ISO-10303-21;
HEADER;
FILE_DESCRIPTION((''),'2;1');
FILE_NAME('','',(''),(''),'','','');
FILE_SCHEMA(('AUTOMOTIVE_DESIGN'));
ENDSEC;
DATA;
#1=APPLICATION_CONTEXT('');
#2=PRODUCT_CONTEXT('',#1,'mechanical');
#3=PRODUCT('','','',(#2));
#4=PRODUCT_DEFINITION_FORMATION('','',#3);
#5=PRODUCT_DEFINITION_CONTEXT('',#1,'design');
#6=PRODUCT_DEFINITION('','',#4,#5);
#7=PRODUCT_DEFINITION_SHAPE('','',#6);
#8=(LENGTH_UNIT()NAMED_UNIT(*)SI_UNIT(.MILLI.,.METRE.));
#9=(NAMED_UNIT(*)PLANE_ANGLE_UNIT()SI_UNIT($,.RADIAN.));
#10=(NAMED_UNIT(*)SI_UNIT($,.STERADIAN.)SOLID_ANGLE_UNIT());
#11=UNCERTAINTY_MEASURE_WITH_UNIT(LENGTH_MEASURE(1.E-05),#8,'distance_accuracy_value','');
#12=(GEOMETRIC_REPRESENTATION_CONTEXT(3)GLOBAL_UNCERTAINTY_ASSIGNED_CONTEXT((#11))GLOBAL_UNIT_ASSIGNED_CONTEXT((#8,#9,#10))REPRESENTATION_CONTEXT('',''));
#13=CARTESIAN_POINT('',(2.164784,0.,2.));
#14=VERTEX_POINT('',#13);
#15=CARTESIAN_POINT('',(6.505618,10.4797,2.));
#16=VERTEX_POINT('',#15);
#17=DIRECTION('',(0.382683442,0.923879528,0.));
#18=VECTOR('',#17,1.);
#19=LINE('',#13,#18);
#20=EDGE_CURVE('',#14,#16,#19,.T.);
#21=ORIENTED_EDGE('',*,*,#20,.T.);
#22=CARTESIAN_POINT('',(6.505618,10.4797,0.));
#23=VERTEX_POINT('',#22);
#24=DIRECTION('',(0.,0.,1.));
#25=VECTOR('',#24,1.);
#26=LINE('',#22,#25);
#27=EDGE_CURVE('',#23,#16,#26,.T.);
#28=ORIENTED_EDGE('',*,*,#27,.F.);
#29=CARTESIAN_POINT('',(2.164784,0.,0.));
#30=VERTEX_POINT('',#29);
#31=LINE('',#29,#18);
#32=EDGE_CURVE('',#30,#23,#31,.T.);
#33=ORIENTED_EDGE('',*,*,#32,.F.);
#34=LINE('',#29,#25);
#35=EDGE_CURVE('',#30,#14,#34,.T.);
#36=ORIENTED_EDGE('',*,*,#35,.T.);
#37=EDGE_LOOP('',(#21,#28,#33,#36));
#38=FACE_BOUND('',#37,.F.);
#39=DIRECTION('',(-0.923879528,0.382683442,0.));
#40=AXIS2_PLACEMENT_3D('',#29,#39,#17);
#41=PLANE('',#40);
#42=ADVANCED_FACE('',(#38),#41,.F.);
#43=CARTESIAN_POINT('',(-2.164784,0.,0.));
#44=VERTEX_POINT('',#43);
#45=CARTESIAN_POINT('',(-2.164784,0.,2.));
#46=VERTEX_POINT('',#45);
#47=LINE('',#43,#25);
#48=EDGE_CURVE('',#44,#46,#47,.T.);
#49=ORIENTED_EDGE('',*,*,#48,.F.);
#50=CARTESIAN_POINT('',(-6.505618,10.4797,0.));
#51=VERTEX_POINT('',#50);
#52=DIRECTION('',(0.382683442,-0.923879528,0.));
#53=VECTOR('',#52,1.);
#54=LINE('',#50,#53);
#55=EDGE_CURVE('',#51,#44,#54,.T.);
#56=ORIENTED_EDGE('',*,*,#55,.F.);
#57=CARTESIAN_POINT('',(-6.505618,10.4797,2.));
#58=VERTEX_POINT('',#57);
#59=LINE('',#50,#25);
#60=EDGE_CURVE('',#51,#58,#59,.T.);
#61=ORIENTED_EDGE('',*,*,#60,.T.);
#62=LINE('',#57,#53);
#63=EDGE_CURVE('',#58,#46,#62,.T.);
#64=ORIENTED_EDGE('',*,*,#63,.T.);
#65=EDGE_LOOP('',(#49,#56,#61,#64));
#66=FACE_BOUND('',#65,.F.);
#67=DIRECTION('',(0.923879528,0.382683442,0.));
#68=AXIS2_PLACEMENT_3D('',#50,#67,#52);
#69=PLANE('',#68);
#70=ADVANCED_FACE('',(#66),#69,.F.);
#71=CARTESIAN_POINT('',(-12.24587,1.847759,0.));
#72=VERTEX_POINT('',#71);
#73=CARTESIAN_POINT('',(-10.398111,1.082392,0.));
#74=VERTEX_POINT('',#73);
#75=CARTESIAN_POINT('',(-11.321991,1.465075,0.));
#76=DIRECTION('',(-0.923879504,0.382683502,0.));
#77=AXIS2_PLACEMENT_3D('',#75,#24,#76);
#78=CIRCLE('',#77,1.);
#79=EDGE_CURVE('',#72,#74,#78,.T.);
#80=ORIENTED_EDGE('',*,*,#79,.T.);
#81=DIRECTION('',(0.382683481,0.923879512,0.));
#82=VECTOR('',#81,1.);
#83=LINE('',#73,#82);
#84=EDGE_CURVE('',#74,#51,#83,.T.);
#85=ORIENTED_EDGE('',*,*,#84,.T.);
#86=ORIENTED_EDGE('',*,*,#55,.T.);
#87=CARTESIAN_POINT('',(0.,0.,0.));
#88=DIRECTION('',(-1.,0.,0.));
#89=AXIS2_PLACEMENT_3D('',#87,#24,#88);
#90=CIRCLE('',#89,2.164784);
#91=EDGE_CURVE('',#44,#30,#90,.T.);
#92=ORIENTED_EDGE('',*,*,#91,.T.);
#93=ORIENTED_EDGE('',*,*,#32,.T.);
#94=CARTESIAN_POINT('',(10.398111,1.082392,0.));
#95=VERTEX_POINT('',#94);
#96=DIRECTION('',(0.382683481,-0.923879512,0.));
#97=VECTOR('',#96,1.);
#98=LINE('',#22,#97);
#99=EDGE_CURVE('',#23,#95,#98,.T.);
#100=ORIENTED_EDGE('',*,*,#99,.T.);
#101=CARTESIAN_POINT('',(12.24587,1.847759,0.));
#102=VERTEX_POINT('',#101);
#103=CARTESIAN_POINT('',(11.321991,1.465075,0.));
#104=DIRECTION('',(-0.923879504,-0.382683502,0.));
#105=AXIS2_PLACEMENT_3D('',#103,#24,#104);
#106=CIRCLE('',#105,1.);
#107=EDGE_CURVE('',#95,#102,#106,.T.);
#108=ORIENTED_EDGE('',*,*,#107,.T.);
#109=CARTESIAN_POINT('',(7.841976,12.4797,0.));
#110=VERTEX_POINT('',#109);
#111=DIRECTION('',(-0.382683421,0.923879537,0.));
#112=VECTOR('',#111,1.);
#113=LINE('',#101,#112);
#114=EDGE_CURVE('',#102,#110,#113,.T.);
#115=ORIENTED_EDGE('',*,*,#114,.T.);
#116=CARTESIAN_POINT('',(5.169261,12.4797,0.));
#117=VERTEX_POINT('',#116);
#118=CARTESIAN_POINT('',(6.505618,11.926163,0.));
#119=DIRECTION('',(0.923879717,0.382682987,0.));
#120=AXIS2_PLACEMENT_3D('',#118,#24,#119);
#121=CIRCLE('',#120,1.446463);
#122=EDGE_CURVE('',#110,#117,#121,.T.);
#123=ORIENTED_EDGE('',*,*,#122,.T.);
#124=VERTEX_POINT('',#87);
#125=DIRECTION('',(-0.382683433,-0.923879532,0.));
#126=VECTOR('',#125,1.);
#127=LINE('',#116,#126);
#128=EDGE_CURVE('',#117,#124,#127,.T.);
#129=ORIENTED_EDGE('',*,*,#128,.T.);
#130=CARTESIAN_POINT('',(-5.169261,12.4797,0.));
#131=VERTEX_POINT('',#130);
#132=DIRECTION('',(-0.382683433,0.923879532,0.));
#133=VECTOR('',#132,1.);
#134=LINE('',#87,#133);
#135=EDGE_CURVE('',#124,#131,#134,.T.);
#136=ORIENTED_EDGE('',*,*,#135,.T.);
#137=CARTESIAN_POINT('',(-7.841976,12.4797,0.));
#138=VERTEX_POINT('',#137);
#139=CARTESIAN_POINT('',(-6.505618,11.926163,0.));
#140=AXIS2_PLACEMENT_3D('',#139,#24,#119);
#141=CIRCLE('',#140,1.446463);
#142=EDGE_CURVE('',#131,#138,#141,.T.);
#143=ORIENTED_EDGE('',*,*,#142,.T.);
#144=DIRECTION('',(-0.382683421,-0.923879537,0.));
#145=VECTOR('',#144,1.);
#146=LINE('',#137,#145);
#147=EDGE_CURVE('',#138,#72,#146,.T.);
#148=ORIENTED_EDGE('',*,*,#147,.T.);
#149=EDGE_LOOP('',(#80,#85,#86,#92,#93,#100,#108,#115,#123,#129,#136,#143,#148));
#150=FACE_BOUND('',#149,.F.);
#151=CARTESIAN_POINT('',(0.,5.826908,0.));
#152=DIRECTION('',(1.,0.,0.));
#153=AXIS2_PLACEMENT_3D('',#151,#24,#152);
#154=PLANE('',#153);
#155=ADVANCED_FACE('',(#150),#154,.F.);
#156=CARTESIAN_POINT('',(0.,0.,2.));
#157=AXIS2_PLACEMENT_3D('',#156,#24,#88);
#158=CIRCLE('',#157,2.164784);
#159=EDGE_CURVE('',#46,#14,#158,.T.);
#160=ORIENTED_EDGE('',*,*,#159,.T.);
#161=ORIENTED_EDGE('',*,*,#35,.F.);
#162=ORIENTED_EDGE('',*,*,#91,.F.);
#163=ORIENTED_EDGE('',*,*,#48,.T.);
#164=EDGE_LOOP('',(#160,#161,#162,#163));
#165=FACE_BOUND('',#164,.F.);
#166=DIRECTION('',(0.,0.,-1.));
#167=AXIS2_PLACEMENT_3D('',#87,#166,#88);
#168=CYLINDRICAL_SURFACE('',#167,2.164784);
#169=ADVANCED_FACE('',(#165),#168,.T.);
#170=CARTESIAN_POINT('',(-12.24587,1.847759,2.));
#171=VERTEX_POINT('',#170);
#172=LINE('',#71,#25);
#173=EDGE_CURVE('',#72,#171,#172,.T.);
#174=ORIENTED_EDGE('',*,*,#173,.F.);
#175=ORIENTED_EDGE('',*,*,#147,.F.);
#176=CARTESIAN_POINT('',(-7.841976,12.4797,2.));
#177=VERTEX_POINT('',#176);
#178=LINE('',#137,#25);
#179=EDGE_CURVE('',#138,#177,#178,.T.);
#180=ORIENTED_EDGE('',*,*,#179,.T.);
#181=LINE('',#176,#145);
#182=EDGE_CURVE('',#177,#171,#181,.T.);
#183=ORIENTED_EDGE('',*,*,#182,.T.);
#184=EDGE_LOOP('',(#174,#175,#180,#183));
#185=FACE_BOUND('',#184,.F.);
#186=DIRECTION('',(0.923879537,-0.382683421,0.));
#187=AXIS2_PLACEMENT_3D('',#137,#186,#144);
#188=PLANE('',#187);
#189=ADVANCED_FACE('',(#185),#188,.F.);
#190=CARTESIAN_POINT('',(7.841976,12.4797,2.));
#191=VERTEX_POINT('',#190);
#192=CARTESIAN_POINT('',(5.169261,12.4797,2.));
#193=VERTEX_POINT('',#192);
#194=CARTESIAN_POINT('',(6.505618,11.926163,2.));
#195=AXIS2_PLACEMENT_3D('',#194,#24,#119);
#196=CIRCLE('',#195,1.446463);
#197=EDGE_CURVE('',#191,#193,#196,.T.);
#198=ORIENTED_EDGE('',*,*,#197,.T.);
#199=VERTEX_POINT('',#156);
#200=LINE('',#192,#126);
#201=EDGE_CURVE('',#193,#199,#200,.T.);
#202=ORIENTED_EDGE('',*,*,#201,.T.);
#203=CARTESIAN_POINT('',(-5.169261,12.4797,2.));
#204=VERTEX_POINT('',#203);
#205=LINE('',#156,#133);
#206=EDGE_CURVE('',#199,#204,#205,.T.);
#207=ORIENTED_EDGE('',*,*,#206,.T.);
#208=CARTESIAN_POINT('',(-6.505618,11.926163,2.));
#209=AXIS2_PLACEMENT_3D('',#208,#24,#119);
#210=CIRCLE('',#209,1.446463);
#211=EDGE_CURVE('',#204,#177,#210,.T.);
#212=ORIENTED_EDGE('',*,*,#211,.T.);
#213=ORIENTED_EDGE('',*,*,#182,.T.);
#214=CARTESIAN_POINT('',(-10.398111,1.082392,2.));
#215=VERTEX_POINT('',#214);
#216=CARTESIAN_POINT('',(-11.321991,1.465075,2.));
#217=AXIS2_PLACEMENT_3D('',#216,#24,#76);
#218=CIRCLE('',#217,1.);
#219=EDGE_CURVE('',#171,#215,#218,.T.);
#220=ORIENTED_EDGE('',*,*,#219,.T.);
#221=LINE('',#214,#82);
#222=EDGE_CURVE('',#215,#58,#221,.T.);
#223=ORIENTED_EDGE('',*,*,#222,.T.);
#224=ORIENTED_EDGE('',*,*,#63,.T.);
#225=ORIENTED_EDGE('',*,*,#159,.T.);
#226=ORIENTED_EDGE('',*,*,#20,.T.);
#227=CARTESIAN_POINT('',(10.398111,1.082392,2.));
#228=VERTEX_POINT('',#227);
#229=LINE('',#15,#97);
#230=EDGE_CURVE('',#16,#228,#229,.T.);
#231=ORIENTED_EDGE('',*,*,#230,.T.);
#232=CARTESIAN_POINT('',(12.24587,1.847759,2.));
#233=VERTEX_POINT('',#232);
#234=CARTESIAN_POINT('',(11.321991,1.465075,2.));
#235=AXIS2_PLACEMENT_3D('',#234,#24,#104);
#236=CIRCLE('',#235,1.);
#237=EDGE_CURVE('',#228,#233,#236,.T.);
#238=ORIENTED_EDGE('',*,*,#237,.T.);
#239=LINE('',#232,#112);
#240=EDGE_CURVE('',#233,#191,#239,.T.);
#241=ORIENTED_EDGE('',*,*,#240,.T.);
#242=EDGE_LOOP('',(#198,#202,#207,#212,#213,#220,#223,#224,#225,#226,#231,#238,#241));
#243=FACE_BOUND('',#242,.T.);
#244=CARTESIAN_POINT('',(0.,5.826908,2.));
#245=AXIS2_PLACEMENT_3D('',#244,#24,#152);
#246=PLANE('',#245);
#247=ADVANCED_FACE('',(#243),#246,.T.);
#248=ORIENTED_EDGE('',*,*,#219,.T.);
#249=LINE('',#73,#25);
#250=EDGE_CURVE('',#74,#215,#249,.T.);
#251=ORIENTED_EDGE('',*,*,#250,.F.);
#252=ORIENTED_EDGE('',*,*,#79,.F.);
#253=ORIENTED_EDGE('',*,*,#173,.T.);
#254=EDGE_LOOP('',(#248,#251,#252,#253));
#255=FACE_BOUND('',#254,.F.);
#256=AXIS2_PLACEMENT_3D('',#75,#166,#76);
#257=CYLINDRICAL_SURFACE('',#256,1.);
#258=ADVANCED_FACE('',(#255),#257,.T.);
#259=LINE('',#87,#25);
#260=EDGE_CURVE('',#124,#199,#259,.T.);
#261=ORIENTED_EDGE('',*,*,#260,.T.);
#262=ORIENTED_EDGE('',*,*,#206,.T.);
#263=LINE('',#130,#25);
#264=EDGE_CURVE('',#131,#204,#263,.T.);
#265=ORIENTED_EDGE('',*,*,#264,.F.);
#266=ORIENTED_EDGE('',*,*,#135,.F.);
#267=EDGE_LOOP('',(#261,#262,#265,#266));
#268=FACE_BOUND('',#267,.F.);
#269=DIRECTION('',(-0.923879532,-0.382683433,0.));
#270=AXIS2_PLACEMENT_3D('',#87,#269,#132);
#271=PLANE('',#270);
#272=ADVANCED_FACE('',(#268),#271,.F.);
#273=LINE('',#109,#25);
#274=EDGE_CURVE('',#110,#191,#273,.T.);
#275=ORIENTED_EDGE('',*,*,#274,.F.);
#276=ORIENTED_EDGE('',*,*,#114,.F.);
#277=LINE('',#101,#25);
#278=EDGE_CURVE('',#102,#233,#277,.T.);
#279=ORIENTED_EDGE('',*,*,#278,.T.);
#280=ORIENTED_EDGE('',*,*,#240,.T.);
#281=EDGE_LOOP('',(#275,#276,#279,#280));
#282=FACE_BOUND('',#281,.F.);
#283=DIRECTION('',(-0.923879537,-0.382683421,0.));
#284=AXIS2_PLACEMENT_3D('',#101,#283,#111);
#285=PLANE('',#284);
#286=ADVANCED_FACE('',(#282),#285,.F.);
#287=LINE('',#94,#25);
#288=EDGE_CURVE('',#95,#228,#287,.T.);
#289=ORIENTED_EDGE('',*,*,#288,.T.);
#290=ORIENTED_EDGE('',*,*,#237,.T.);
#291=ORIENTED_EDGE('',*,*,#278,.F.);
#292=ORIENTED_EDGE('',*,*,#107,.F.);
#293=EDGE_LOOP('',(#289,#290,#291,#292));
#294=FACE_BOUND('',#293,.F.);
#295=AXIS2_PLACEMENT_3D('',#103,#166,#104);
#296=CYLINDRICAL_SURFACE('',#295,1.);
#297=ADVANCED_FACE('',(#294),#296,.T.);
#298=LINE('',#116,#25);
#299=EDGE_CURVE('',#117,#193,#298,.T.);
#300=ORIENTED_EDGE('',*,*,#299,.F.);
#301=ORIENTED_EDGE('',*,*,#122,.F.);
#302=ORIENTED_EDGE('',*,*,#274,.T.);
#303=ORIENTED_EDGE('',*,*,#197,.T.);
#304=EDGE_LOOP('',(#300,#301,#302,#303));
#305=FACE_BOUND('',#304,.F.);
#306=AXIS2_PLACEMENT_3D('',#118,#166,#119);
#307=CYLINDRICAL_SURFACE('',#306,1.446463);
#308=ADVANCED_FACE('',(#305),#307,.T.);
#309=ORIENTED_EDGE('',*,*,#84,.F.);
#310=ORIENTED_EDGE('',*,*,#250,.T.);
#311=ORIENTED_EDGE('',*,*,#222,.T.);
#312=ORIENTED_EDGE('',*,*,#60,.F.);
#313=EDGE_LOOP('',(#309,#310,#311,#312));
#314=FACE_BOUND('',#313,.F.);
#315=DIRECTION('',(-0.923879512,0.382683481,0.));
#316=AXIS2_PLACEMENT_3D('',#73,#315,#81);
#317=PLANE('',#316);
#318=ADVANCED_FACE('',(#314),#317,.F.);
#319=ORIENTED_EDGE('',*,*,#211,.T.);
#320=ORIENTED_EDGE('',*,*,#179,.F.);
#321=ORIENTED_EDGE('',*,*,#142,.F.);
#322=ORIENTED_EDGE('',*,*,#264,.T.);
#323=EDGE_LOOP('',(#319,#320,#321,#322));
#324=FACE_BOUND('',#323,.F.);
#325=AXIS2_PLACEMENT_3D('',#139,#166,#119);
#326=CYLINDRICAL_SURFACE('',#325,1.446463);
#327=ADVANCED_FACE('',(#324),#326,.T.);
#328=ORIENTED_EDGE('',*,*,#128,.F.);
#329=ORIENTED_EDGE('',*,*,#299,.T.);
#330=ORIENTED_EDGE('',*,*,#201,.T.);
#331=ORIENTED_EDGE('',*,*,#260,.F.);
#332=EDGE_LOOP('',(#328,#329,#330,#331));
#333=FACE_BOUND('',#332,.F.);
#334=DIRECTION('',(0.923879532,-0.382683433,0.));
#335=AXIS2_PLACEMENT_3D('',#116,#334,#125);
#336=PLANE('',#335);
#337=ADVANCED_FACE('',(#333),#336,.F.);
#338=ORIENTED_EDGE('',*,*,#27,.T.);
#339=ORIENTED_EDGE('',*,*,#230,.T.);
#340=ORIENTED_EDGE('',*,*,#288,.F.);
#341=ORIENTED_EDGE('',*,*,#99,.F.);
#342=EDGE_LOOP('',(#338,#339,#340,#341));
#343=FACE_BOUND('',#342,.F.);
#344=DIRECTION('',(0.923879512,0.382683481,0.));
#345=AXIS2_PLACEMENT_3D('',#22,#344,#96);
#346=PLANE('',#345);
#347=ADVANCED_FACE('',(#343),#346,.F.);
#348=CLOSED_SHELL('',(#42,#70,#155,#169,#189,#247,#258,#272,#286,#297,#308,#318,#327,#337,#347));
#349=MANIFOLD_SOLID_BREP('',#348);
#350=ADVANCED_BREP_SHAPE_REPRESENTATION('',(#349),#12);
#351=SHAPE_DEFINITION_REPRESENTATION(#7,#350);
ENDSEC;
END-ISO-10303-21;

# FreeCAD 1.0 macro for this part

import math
import FreeCAD as App
import Part
import Sketcher
from FreeCAD import Vector
Q = App.Units.Quantity

doc = App.newDocument("Part")
body = doc.addObject("PartDesign::Body", "Body")

# Sketch on XY plane
sketch1 = body.newObject("Sketcher::SketchObject", "Sketch")
sketch1.AttachmentSupport = (doc.getObject("XY_Plane"), [""])
sketch1.MapMode = "FlatFace"
sketch1.addGeometry([
    Part.LineSegment(Vector(5.169261, 12.4797, 0), Vector(0, 0, 0)),  # 0
    Part.LineSegment(Vector(0, 0, 0), Vector(-5.169261, 12.4797, 0)),  # 1
    Part.ArcOfCircle(Part.Circle(Vector(-6.505618, 11.926163, 0), Vector(0, 0, 1), 1.446463), math.radians(22.499972), math.radians(157.500028)),  # 2
    Part.LineSegment(Vector(-7.841976, 12.4797, 0), Vector(-12.24587, 1.847759, 0)),  # 3
    Part.ArcOfCircle(Part.Circle(Vector(-11.321991, 1.465075, 0), Vector(0, 0, 1), 1), math.radians(157.499996), math.radians(337.499996)),  # 4
    Part.LineSegment(Vector(-10.398111, 1.082392, 0), Vector(-6.505618, 10.4797, 0)),  # 5
    Part.LineSegment(Vector(-6.505618, 10.4797, 0), Vector(-2.164784, 0, 0)),  # 6
    Part.ArcOfCircle(Part.Circle(Vector(0, 0, 0), Vector(0, 0, 1), 2.164784), math.radians(180), math.radians(360)),  # 7
    Part.LineSegment(Vector(2.164784, 0, 0), Vector(6.505618, 10.4797, 0)),  # 8
    Part.LineSegment(Vector(6.505618, 10.4797, 0), Vector(10.398111, 1.082392, 0)),  # 9
    Part.ArcOfCircle(Part.Circle(Vector(11.321991, 1.465075, 0), Vector(0, 0, 1), 1), math.radians(-157.499996), math.radians(22.500004)),  # 10
    Part.LineSegment(Vector(12.24587, 1.847759, 0), Vector(7.841976, 12.4797, 0)),  # 11
    Part.ArcOfCircle(Part.Circle(Vector(6.505618, 11.926163, 0), Vector(0, 0, 1), 1.446463), math.radians(22.499972), math.radians(157.500028)),  # 12
], False)
sketch1.addConstraint([
    Sketcher.Constraint("Coincident", 0, 2, 1, 1),
    Sketcher.Constraint("Tangent", 1, 2, 2, 1),
    Sketcher.Constraint("Tangent", 2, 2, 3, 1),
    Sketcher.Constraint("Tangent", 3, 2, 4, 1),
    Sketcher.Constraint("Tangent", 4, 2, 5, 1),
    Sketcher.Constraint("Coincident", 5, 2, 6, 1),
    Sketcher.Constraint("Coincident", 6, 2, 7, 1),
    Sketcher.Constraint("Coincident", 7, 2, 8, 1),
    Sketcher.Constraint("Coincident", 8, 2, 9, 1),
    Sketcher.Constraint("Tangent", 9, 2, 10, 1),
    Sketcher.Constraint("Tangent", 10, 2, 11, 1),
    Sketcher.Constraint("Tangent", 11, 2, 12, 1),
    Sketcher.Constraint("Tangent", 12, 2, 0, 1),
    Sketcher.Constraint("Coincident", 7, 3, -1, 1),
    Sketcher.Constraint("Coincident", 0, 2, -1, 1),
    Sketcher.Constraint("Equal", 4, 10),
    Sketcher.Constraint("Equal", 2, 12),
    Sketcher.Constraint("Symmetric", 4, 3, 10, 3, -2),
    Sketcher.Constraint("Symmetric", 2, 3, 12, 3, -2),
    Sketcher.Constraint("Symmetric", 5, 2, 8, 2, -2),
    Sketcher.Constraint("PointOnObject", 6, 2, -1),
    Sketcher.Constraint("PointOnObject", 7, 2, -1),
    Sketcher.Constraint("Parallel", 0, 3),
    Sketcher.Constraint("Parallel", 3, 5),
    Sketcher.Constraint("Parallel", 1, 6),
    Sketcher.Constraint("Vertical", 2, 3, 5, 2),
    Sketcher.Constraint("Radius", 4, Q("1 mm")),
    Sketcher.Constraint("Angle", 0, Q("-112.5 deg")),
    Sketcher.Constraint("DistanceY", 5, 2, 1, 2, Q("2 mm")),
    Sketcher.Constraint("DistanceY", -1, 1, 1, 2, Q("12.4797 mm")),
    Sketcher.Constraint("Distance", 3, Q("11.50793 mm")),
])
pad1 = body.newObject("PartDesign::Pad", "Pad")
pad1.Profile = sketch1
pad1.Length = 2

doc.recompute()
